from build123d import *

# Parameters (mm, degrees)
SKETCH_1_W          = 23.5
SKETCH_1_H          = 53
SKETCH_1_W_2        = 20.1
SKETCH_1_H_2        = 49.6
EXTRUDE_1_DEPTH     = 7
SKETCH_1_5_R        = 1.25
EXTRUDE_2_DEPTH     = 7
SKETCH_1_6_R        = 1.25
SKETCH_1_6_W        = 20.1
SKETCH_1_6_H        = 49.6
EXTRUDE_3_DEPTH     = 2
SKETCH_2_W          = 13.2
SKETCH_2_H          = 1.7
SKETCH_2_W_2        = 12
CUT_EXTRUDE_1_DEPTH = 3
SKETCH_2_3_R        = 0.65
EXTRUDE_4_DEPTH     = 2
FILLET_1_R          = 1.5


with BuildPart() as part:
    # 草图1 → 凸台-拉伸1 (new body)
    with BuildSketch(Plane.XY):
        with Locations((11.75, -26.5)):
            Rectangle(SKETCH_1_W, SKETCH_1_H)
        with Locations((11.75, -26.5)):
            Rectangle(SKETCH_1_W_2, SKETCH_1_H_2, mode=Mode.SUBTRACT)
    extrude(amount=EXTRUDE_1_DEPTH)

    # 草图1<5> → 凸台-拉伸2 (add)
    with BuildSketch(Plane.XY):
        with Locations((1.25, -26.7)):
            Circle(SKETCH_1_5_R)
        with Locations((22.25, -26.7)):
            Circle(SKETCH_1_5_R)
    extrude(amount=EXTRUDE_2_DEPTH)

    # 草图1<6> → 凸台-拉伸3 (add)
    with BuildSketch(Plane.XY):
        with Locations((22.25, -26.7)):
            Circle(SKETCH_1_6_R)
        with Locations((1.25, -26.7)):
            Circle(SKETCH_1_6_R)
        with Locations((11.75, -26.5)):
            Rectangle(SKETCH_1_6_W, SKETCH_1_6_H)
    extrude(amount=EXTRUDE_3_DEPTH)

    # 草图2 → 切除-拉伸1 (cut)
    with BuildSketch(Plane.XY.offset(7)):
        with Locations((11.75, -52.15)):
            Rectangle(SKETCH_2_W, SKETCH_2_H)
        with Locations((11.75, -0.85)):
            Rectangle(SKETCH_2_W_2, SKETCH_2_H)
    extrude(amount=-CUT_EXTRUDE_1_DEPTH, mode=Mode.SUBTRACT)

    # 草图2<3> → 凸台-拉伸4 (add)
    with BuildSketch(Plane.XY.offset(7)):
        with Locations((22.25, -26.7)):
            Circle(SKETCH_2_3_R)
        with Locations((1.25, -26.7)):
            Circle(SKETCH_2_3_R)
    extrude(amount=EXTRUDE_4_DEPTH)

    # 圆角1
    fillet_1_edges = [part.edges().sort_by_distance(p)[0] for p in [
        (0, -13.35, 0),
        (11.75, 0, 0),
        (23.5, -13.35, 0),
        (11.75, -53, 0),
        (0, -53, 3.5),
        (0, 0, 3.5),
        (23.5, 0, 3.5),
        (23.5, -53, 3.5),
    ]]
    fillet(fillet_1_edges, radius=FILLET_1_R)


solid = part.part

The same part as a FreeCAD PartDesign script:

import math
import FreeCAD as App
import Part
import Sketcher
from FreeCAD import Vector


def edges_at(feature, points):
    """Names of the edges that pass closest to the given points."""
    edges = feature.Shape.Edges
    near = lambda p: min(range(len(edges)), key=lambda i: edges[i].distToShape(Part.Vertex(*p))[0])
    return sorted({f"Edge{near(p) + 1}" for p in points})


def add_polygon(sketch, points):
    """Adds a closed chain of lines whose ends are joined by coincident constraints."""
    first, n = sketch.GeometryCount, len(points)
    for a, b in zip(points, points[1:] + points[:1]):
        sketch.addGeometry(Part.LineSegment(App.Vector(*a, 0), App.Vector(*b, 0)), False)
    for i in range(n):
        sketch.addConstraint(Sketcher.Constraint("Coincident", first + i, 2, first + (i + 1) % n, 1))

doc = App.newDocument("Part")
body = doc.addObject("PartDesign::Body", "Body")

# Sketch on XY plane
sketch1 = doc.addObject("Sketcher::SketchObject", "Sketch")
body.addObject(sketch1)
sketch1.AttachmentSupport = (doc.XY_Plane, [""])
sketch1.MapMode = "FlatFace"
add_polygon(sketch1, [(0, 0), (0, -53), (24, -53), (24, 0)])  # lines 0-3
add_polygon(sketch1, [(22, -51), (2, -51), (2, -2), (22, -2)])  # lines 4-7
sketch1.addConstraint([
    Sketcher.Constraint("Vertical", 0),
    Sketcher.Constraint("Horizontal", 1),
    Sketcher.Constraint("Vertical", 2),
    Sketcher.Constraint("Horizontal", 3),
    Sketcher.Constraint("Horizontal", 4),
    Sketcher.Constraint("Vertical", 5),
    Sketcher.Constraint("Horizontal", 6),
    Sketcher.Constraint("Vertical", 7),
    Sketcher.Constraint("Coincident", 3, 2, -1, 1),
    Sketcher.Constraint("DistanceY", 0, 2, 0, 1, 53.0),
    Sketcher.Constraint("DistanceX", 1, 1, 1, 2, 23.5),
    Sketcher.Constraint("DistanceX", 4, 2, 4, 1, 20.1),
    Sketcher.Constraint("DistanceY", 5, 1, 5, 2, 49.6),
    Sketcher.Constraint("DistanceX", -1, 1, 4, 2, 1.7),
    Sketcher.Constraint("DistanceY", 4, 2, -1, 1, 51.3),
])
pad1 = doc.addObject("PartDesign::Pad", "Pad")
body.addObject(pad1)
pad1.Profile = sketch1
pad1.Length = 7

# Sketch on XY plane
sketch2 = doc.addObject("Sketcher::SketchObject", "Sketch001")
body.addObject(sketch2)
sketch2.AttachmentSupport = (doc.XY_Plane, [""])
sketch2.MapMode = "FlatFace"
sketch2.addGeometry([
    Part.Circle(Vector(1.2, -26.7, 0), Vector(0, 0, 1), 1.2),
    Part.Circle(Vector(22.2, -26.7, 0), Vector(0, 0, 1), 1.2),
], False)
sketch2.addConstraint([
    Sketcher.Constraint("Equal", 0, 1),
    Sketcher.Constraint("Horizontal", 0, 3, 1, 3),
    Sketcher.Constraint("Diameter", 0, 2.5),
    Sketcher.Constraint("DistanceX", 0, 3, 1, 3, 21.0),
    Sketcher.Constraint("DistanceY", 0, 3, -1, 1, 26.7),
    Sketcher.Constraint("DistanceX", -1, 1, 0, 3, 1.25),
])
pad2 = doc.addObject("PartDesign::Pad", "Pad001")
body.addObject(pad2)
pad2.Profile = sketch2
pad2.Length = 7

# Sketch on XY plane
sketch3 = doc.addObject("Sketcher::SketchObject", "Sketch002")
body.addObject(sketch3)
sketch3.AttachmentSupport = (doc.XY_Plane, [""])
sketch3.MapMode = "FlatFace"
sketch3.addGeometry([
    Part.ArcOfCircle(Part.Circle(Vector(22.2, -26.7, 0), Vector(0, 0, 1), 1.2), math.radians(-111), math.radians(111)),  # 0
    Part.LineSegment(Vector(21.8, -25.5, 0), Vector(21.8, -1.7, 0)),  # 1
    Part.LineSegment(Vector(21.8, -1.7, 0), Vector(1.7, -1.7, 0)),  # 2
    Part.LineSegment(Vector(1.7, -1.7, 0), Vector(1.7, -25.5, 0)),  # 3
    Part.ArcOfCircle(Part.Circle(Vector(1.2, -26.7, 0), Vector(0, 0, 1), 1.2), math.radians(69), math.radians(291)),  # 4
    Part.LineSegment(Vector(1.7, -27.9, 0), Vector(1.7, -51.3, 0)),  # 5
    Part.LineSegment(Vector(1.7, -51.3, 0), Vector(21.8, -51.3, 0)),  # 6
    Part.LineSegment(Vector(21.8, -51.3, 0), Vector(21.8, -27.9, 0)),  # 7
], False)
sketch3.addConstraint([
    Sketcher.Constraint("Coincident", 0, 2, 1, 1),
    Sketcher.Constraint("Coincident", 1, 2, 2, 1),
    Sketcher.Constraint("Coincident", 2, 2, 3, 1),
    Sketcher.Constraint("Coincident", 3, 2, 4, 1),
    Sketcher.Constraint("Coincident", 4, 2, 5, 1),
    Sketcher.Constraint("Coincident", 5, 2, 6, 1),
    Sketcher.Constraint("Coincident", 6, 2, 7, 1),
    Sketcher.Constraint("Coincident", 7, 2, 0, 1),
    Sketcher.Constraint("Vertical", 1),
    Sketcher.Constraint("Horizontal", 2),
    Sketcher.Constraint("Vertical", 3),
    Sketcher.Constraint("Vertical", 5),
    Sketcher.Constraint("Horizontal", 6),
    Sketcher.Constraint("Vertical", 7),
    Sketcher.Constraint("Equal", 0, 4),
    Sketcher.Constraint("Horizontal", 0, 3, 4, 3),
    Sketcher.Constraint("Horizontal", 0, 2, 3, 2),
    Sketcher.Constraint("Horizontal", 4, 2, 7, 2),
    Sketcher.Constraint("Vertical", 3, 2, 4, 2),
    Sketcher.Constraint("Radius", 0, 1.25),
    Sketcher.Constraint("DistanceX", 2, 2, 2, 1, 20.1),
    Sketcher.Constraint("DistanceX", 4, 3, 0, 3, 21.0),
    Sketcher.Constraint("DistanceY", 0, 3, 1, 2, 25.0),
    Sketcher.Constraint("DistanceY", 0, 3, -1, 1, 26.7),
    Sketcher.Constraint("DistanceX", -1, 1, 0, 2, 21.8),
    Sketcher.Constraint("DistanceY", 5, 2, -1, 1, 51.3),
])
pad3 = doc.addObject("PartDesign::Pad", "Pad002")
body.addObject(pad3)
pad3.Profile = sketch3
pad3.Length = 2

# Sketch on XY plane
sketch4 = doc.addObject("Sketcher::SketchObject", "Sketch003")
body.addObject(sketch4)
sketch4.AttachmentSupport = (doc.XY_Plane, [""])
sketch4.MapMode = "FlatFace"
sketch4.AttachmentOffset = App.Placement(Vector(0, 0, 7), App.Rotation())
add_polygon(sketch4, [(5.2, -51.3), (5.2, -53), (18.4, -53), (18.4, -51.3)])  # lines 0-3
add_polygon(sketch4, [(5.8, 0), (5.8, -1.7), (17.8, -1.7), (17.8, 0)])  # lines 4-7
sketch4.addConstraint([
    Sketcher.Constraint("Vertical", 0),
    Sketcher.Constraint("Horizontal", 1),
    Sketcher.Constraint("Vertical", 2),
    Sketcher.Constraint("Horizontal", 3),
    Sketcher.Constraint("Vertical", 4),
    Sketcher.Constraint("Horizontal", 5),
    Sketcher.Constraint("Vertical", 6),
    Sketcher.Constraint("Horizontal", 7),
    Sketcher.Constraint("PointOnObject", 6, 2, -1),
    Sketcher.Constraint("Equal", 2, 4),
    Sketcher.Constraint("DistanceX", 5, 1, 5, 2, 12.0),
    Sketcher.Constraint("DistanceX", 1, 1, 1, 2, 13.2),
    Sketcher.Constraint("DistanceY", 0, 2, 0, 1, 1.7),
    Sketcher.Constraint("DistanceY", 0, 2, -1, 1, 53.0),
    Sketcher.Constraint("DistanceX", 3, 2, 4, 2, 0.6),
    Sketcher.Constraint("DistanceX", -1, 1, 0, 2, 5.15),
])
pocket1 = doc.addObject("PartDesign::Pocket", "Pocket")
body.addObject(pocket1)
pocket1.Profile = sketch4
pocket1.Length = 3

# Sketch on XY plane
sketch5 = doc.addObject("Sketcher::SketchObject", "Sketch004")
body.addObject(sketch5)
sketch5.AttachmentSupport = (doc.XY_Plane, [""])
sketch5.MapMode = "FlatFace"
sketch5.AttachmentOffset = App.Placement(Vector(0, 0, 7), App.Rotation())
sketch5.addGeometry([
    Part.Circle(Vector(22.2, -26.7, 0), Vector(0, 0, 1), 0.7),
    Part.Circle(Vector(1.2, -26.7, 0), Vector(0, 0, 1), 0.7),
], False)
sketch5.addConstraint([
    Sketcher.Constraint("Equal", 0, 1),
    Sketcher.Constraint("Horizontal", 0, 3, 1, 3),
    Sketcher.Constraint("Diameter", 0, 1.3),
    Sketcher.Constraint("DistanceX", 1, 3, 0, 3, 21.0),
    Sketcher.Constraint("DistanceY", 0, 3, -1, 1, 26.7),
    Sketcher.Constraint("DistanceX", -1, 1, 0, 3, 22.25),
])
pad4 = doc.addObject("PartDesign::Pad", "Pad003")
body.addObject(pad4)
pad4.Profile = sketch5
pad4.Length = 2
doc.recompute()

fillet = doc.addObject("PartDesign::Fillet", "Fillet")
body.addObject(fillet)
fillet.Base = (pad4, edges_at(pad4, [
    (0, -13.35, 0),
    (11.75, 0, 0),
    (23.5, -13.35, 0),
    (11.75, -53, 0),
    (0, -53, 3.5),
    (0, 0, 3.5),
    (23.5, 0, 3.5),
    (23.5, -53, 3.5),
]))
fillet.Radius = 1.5

doc.recompute()
